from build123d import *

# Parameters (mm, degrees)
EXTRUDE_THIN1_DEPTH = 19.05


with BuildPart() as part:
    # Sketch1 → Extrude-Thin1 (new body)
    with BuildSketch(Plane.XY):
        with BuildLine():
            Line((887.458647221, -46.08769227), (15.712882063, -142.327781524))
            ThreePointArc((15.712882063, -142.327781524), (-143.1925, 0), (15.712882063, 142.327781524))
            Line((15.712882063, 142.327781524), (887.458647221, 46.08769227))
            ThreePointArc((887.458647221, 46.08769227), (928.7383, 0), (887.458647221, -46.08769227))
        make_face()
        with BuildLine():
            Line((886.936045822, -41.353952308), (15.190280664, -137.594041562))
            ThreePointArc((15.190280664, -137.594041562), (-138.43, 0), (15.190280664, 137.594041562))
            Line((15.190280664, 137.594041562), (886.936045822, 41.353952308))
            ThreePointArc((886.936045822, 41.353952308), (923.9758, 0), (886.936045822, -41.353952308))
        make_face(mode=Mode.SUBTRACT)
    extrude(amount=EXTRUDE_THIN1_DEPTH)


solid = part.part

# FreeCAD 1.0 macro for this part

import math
import FreeCAD as App
import Part
import Sketcher
Q = App.Units.Quantity

doc = App.newDocument("Part")
body = doc.addObject("PartDesign::Body", "Body")

# Sketch on XY plane
sketch1 = body.newObject("Sketcher::SketchObject", "Sketch")
sketch1.AttachmentSupport = (doc.getObject("XY_Plane"), [""])
sketch1.MapMode = "FlatFace"
sketch1.addGeometry(Part.LineSegment(App.Vector(16, -142, 0), App.Vector(887, -46, 0)), False)
sketch1.addGeometry(Part.ArcOfCircle(Part.Circle(App.Vector(882, 0, 0), App.Vector(0, 0, 1), 46), math.radians(-84), math.radians(84)), False)
sketch1.addGeometry(Part.LineSegment(App.Vector(887, 46, 0), App.Vector(16, 142, 0)), False)
sketch1.addGeometry(Part.ArcOfCircle(Part.Circle(App.Vector(0, 0, 0), App.Vector(0, 0, 1), 143), math.radians(84), math.radians(276)), False)
sketch1.addGeometry(Part.LineSegment(App.Vector(887, -41, 0), App.Vector(15, -138, 0)), False)
sketch1.addGeometry(Part.ArcOfCircle(Part.Circle(App.Vector(0, 0, 0), App.Vector(0, 0, 1), 138), math.radians(84), math.radians(276)), False)
sketch1.addGeometry(Part.LineSegment(App.Vector(15, 138, 0), App.Vector(887, 41, 0)), False)
sketch1.addGeometry(Part.ArcOfCircle(Part.Circle(App.Vector(882, 0, 0), App.Vector(0, 0, 1), 42), math.radians(-84), math.radians(84)), False)
sketch1.addConstraint(Sketcher.Constraint("Tangent", 0, 2, 1, 1))
sketch1.addConstraint(Sketcher.Constraint("Tangent", 1, 2, 2, 1))
sketch1.addConstraint(Sketcher.Constraint("Tangent", 2, 2, 3, 1))
sketch1.addConstraint(Sketcher.Constraint("Tangent", 3, 2, 0, 1))
sketch1.addConstraint(Sketcher.Constraint("Tangent", 4, 2, 5, 2))
sketch1.addConstraint(Sketcher.Constraint("Tangent", 5, 1, 6, 1))
sketch1.addConstraint(Sketcher.Constraint("Tangent", 6, 2, 7, 2))
sketch1.addConstraint(Sketcher.Constraint("Tangent", 7, 1, 4, 1))
sketch1.addConstraint(Sketcher.Constraint("Coincident", 3, 3, -1, 1))
sketch1.addConstraint(Sketcher.Constraint("Coincident", 5, 3, -1, 1))
sketch1.addConstraint(Sketcher.Constraint("Coincident", 7, 3, 1, 3))
sketch1.addConstraint(Sketcher.Constraint("PointOnObject", 1, 3, -1))
sketch1.addConstraint(Sketcher.Constraint("Parallel", 0, 4))
sketch1.addConstraint(Sketcher.Constraint("Radius", 5, Q("5.45 in")))
sketch1.addConstraint(Sketcher.Constraint("Radius", 7, Q("1.638 in")))
sketch1.addConstraint(Sketcher.Constraint("Radius", 1, Q("1.8255 in")))
sketch1.addConstraint(Sketcher.Constraint("DistanceX", -1, 1, 1, 3, Q("34.739 in")))
pad1 = body.newObject("PartDesign::Pad", "Pad")
pad1.Profile = sketch1
pad1.Length = Q("0.75 in")

doc.recompute()
